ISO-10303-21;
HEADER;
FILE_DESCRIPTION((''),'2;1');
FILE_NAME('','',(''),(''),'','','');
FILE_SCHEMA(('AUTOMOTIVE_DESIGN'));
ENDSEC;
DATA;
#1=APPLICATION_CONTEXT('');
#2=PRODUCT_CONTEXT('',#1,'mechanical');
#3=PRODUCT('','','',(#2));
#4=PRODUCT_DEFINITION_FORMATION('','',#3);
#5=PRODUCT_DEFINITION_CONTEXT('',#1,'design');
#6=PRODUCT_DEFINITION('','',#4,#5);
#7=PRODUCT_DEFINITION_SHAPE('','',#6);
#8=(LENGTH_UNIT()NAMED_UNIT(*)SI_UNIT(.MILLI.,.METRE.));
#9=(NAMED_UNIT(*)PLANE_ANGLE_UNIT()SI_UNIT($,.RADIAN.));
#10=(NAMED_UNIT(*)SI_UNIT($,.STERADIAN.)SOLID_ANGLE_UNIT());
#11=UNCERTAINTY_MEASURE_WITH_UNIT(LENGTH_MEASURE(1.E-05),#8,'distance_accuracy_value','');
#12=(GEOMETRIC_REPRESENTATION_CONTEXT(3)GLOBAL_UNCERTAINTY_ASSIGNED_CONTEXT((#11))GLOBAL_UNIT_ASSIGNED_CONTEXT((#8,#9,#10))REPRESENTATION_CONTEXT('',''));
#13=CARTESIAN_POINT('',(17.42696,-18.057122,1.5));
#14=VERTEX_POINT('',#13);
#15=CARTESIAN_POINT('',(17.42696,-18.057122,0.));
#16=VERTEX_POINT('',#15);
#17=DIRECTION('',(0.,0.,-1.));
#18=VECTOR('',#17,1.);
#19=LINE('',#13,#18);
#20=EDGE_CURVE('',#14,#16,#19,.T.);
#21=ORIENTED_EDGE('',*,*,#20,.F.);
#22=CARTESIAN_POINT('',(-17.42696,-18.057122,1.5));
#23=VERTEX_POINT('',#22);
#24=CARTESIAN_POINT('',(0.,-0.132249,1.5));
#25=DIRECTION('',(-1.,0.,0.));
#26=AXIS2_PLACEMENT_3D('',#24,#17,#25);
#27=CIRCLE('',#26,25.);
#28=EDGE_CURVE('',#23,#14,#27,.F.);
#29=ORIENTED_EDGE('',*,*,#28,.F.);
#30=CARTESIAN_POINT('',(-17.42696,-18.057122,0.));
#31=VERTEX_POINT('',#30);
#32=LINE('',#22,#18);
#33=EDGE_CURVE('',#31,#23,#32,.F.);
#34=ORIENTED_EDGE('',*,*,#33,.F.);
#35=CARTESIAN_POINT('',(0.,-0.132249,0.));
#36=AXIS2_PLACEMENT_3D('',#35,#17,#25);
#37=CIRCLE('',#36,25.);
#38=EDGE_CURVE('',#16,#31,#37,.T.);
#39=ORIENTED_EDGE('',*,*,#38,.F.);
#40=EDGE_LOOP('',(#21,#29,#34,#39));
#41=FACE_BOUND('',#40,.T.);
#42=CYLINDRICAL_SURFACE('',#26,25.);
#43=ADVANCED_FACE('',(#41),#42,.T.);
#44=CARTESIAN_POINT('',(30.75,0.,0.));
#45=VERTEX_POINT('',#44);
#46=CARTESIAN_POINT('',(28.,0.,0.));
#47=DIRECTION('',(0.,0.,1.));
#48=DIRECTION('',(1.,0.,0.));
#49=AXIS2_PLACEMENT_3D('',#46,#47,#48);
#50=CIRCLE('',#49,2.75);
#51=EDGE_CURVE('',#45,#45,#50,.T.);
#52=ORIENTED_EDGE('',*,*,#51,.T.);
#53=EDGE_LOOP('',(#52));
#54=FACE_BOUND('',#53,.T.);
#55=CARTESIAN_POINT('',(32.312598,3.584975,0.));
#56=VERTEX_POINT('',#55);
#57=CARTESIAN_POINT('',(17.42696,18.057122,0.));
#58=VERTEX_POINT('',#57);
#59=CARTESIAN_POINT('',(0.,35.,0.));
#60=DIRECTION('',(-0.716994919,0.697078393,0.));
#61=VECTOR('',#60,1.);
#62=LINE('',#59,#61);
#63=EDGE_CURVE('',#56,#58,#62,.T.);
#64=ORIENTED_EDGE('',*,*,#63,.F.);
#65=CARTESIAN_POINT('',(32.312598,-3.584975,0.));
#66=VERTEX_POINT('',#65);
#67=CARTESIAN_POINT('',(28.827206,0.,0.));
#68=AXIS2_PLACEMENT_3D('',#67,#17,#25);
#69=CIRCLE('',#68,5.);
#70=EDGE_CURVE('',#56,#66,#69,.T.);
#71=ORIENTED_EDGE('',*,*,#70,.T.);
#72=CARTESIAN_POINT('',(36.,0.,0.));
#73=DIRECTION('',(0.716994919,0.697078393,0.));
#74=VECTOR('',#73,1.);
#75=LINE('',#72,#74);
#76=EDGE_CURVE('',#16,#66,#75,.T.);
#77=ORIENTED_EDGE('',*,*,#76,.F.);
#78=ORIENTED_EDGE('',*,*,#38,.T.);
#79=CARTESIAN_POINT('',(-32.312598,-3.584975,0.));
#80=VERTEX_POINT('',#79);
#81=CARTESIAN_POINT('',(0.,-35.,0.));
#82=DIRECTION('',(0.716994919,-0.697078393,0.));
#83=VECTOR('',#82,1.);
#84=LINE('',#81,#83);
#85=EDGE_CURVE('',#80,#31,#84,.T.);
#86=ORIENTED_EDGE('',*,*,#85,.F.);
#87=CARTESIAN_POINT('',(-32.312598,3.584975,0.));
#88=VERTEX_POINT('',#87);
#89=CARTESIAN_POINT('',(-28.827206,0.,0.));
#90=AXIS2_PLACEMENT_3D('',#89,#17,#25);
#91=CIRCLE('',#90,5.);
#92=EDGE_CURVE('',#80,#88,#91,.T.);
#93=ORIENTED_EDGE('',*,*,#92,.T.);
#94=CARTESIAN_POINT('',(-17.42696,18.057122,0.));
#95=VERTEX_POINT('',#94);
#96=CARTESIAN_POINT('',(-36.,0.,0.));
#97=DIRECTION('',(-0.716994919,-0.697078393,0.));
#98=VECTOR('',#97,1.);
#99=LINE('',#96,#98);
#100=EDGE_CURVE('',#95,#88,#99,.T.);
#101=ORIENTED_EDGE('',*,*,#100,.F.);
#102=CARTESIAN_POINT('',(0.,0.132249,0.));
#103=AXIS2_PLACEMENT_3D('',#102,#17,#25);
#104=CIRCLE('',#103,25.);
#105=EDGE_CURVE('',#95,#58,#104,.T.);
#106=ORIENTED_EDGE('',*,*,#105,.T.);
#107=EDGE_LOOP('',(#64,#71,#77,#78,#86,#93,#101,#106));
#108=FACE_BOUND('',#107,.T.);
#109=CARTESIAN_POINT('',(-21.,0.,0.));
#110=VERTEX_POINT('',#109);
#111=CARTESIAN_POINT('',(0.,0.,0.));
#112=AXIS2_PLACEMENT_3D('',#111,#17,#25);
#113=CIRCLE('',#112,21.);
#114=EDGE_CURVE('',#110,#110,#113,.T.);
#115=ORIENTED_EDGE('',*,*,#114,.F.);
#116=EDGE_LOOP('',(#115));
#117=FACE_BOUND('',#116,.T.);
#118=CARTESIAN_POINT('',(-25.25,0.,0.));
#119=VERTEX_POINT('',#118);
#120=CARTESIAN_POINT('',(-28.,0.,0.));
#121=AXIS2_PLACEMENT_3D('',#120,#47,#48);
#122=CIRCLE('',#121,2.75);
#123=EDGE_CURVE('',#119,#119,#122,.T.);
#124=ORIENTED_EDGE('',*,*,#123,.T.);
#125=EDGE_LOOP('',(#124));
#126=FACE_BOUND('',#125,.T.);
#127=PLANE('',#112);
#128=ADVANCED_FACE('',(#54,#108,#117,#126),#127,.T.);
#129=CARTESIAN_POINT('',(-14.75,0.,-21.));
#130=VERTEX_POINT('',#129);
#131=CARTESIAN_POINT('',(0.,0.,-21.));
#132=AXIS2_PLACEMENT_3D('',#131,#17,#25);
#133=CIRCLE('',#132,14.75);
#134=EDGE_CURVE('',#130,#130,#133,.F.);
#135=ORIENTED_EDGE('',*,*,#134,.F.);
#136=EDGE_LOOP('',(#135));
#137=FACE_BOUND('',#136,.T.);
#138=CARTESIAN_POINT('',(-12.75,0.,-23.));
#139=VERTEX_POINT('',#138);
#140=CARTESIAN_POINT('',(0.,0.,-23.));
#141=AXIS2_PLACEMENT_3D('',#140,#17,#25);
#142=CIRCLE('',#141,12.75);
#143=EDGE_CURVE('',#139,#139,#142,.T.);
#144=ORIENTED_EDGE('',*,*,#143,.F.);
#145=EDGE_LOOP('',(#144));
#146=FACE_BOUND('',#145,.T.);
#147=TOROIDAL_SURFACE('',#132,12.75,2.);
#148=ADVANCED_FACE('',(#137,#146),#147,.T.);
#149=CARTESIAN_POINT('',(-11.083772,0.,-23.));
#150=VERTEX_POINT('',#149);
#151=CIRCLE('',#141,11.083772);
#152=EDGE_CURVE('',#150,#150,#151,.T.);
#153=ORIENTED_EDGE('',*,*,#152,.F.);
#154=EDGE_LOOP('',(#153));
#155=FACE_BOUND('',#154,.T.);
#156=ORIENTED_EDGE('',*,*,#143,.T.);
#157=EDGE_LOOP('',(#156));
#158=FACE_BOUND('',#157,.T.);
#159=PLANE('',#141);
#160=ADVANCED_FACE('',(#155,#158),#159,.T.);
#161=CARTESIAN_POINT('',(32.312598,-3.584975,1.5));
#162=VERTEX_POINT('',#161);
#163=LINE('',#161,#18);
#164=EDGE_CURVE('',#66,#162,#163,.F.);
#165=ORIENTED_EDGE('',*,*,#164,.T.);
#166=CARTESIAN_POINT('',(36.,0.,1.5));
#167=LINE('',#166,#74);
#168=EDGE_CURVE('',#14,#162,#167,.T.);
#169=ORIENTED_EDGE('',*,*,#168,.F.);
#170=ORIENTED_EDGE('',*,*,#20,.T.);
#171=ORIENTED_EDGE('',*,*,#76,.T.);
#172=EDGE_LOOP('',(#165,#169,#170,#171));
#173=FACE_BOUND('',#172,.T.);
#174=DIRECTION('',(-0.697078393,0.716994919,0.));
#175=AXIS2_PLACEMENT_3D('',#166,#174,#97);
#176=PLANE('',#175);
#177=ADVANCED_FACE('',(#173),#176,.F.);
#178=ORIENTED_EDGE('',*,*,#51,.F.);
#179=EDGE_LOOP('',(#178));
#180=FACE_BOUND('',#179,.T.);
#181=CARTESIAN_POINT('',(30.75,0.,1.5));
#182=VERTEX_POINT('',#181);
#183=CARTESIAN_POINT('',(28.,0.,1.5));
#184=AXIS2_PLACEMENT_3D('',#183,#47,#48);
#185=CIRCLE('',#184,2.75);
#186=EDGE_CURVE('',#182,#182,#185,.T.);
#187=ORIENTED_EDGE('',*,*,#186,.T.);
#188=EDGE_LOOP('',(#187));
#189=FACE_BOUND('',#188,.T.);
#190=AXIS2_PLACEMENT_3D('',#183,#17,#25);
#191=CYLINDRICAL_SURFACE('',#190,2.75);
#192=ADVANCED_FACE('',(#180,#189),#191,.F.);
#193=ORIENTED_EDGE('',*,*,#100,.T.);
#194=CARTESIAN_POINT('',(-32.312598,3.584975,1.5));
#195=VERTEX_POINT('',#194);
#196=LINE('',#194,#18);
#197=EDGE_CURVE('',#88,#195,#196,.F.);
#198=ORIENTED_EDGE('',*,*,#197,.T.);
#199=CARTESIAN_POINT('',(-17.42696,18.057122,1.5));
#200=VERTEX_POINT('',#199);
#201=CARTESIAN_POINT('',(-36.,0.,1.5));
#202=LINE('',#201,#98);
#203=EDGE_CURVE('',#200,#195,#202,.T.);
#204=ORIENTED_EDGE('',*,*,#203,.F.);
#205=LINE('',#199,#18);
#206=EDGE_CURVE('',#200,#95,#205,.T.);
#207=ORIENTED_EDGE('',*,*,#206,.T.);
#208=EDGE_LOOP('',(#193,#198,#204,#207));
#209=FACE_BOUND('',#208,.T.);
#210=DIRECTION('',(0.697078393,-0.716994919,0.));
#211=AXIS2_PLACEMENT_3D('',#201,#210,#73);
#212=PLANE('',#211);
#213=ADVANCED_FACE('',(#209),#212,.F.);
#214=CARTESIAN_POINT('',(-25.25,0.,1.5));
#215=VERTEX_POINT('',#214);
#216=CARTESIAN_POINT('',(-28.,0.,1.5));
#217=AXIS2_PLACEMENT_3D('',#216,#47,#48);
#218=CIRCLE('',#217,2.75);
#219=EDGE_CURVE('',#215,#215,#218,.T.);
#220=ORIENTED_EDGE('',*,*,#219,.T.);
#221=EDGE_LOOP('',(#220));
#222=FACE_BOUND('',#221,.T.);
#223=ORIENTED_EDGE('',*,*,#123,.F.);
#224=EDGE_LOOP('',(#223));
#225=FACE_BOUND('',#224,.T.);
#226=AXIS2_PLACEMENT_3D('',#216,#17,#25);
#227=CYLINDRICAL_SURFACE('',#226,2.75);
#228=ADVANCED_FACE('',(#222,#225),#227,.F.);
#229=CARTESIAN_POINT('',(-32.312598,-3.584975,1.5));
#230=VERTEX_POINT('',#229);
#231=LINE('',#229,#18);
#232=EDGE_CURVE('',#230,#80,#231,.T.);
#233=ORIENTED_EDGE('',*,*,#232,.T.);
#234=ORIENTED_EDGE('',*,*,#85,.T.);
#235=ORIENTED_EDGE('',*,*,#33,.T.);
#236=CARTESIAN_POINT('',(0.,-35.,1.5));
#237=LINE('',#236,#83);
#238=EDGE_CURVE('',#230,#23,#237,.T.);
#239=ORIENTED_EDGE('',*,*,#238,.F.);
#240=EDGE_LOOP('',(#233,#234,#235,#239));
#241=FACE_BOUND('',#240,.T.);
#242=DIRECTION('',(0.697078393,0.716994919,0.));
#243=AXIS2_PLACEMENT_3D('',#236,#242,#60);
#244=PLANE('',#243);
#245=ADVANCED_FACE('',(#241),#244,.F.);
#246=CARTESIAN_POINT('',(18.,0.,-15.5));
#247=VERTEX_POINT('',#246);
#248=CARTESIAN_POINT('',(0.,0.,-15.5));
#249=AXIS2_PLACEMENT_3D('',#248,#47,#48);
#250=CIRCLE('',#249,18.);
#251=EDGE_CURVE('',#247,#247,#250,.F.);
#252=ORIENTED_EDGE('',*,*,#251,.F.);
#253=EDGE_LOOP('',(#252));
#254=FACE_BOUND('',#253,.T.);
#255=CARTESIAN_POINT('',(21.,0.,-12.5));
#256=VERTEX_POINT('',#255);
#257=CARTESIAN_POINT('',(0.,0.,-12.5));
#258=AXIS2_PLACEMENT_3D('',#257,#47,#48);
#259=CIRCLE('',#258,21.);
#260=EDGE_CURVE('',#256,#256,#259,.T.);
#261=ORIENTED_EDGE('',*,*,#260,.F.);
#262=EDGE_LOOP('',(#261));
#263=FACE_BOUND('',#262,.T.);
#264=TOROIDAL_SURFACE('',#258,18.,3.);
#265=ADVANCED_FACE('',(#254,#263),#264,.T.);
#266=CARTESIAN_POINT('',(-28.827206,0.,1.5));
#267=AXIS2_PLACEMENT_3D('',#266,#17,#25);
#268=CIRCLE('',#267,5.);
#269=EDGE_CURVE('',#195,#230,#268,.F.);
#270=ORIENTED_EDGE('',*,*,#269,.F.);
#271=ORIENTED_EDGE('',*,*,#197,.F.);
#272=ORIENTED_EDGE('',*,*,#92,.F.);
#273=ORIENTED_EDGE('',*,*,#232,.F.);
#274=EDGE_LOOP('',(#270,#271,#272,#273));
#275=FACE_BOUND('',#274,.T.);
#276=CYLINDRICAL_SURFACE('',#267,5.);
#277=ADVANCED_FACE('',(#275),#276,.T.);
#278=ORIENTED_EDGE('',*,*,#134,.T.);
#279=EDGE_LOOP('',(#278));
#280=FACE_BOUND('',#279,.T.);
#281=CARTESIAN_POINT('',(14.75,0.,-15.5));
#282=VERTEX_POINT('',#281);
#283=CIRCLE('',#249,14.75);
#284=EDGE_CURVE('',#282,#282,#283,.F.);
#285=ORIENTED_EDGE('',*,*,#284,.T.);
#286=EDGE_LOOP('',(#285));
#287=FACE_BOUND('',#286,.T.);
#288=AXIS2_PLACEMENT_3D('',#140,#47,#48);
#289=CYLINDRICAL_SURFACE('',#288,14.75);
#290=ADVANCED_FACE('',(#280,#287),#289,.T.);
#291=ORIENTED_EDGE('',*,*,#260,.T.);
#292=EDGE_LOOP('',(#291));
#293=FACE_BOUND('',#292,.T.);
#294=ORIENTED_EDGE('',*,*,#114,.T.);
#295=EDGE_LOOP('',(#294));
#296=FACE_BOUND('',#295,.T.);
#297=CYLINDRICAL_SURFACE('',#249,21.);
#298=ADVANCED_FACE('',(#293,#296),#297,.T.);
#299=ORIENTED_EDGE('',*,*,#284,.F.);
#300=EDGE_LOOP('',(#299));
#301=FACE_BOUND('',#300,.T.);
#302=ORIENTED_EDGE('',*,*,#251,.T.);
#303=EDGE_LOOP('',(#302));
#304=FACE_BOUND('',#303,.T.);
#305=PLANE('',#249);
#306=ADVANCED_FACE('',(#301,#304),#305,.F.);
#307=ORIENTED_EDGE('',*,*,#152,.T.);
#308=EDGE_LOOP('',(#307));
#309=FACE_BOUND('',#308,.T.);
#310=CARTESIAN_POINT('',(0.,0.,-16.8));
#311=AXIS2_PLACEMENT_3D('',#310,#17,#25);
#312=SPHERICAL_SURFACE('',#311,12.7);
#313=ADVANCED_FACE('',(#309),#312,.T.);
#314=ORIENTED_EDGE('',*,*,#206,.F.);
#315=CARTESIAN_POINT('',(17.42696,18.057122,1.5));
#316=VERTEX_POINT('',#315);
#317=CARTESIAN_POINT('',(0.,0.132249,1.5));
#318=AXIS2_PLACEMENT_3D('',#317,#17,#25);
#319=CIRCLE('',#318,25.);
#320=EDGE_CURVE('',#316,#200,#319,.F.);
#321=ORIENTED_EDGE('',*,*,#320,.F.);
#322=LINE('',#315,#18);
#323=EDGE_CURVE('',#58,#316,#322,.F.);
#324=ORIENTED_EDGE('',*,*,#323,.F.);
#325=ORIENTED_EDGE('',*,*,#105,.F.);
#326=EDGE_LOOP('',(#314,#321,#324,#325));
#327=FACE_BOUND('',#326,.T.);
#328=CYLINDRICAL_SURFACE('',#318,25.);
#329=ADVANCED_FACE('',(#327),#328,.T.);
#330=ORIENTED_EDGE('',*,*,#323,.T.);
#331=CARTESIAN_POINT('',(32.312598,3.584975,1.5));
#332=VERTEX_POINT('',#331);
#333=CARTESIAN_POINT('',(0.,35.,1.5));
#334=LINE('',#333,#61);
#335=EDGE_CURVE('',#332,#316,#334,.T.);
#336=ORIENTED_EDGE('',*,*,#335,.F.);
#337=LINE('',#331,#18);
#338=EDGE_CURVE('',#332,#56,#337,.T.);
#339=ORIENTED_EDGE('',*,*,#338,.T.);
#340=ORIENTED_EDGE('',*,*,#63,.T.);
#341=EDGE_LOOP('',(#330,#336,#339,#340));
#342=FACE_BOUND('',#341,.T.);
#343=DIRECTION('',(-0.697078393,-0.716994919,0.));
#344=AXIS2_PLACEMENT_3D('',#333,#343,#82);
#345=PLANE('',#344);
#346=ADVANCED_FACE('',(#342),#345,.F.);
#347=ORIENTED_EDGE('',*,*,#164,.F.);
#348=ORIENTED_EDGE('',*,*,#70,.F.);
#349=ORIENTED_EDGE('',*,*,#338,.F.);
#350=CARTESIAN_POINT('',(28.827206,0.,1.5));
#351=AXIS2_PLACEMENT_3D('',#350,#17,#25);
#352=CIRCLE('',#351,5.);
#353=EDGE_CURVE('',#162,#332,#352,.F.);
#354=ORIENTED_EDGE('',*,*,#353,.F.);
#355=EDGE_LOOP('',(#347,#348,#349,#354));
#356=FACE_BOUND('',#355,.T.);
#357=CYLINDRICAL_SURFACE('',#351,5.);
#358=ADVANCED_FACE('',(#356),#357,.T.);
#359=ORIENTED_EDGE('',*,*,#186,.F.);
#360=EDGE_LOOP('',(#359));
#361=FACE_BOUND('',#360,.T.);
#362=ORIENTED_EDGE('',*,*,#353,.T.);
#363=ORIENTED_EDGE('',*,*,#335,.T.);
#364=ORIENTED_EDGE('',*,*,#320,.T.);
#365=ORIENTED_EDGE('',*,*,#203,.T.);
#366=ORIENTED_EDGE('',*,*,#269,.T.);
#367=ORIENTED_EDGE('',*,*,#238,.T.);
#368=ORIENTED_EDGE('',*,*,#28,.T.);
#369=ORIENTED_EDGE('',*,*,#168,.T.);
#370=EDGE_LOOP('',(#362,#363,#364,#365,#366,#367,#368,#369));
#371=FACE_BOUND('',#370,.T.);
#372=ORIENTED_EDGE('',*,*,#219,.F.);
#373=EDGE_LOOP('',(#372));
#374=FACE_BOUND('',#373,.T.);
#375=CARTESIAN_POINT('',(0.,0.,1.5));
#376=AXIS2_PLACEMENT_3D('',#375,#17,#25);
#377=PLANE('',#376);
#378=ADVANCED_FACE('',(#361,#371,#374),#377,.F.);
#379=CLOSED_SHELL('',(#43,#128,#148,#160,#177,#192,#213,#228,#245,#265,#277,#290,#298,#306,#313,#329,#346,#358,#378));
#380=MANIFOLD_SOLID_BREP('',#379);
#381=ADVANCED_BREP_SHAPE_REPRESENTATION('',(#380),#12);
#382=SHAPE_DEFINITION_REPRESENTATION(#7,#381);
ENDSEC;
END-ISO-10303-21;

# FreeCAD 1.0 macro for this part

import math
import FreeCAD as App
import Part
import Sketcher
from FreeCAD import Vector


def edges_at(feature, points):
    """Names of the edges that pass closest to the given points."""
    edges = feature.Shape.Edges
    near = lambda p: min(range(len(edges)), key=lambda i: edges[i].distToShape(Part.Vertex(*p))[0])
    return sorted({f"Edge{near(p) + 1}" for p in points})

doc = App.newDocument("Part")
body = doc.addObject("PartDesign::Body", "Body")

sketch1 = body.newObject("Sketcher::SketchObject", "Sketch")
sketch1.AttachmentSupport = (doc.getObject("XY_Plane"), [""])
sketch1.MapMode = "FlatFace"
sketch1.addGeometry([
    Part.LineSegment(Vector(-36, 0, 0), Vector(0, -35, 0)),
    Part.LineSegment(Vector(0, -35, 0), Vector(36, 0, 0)),
    Part.LineSegment(Vector(36, 0, 0), Vector(0, 35, 0)),
    Part.LineSegment(Vector(0, 35, 0), Vector(-36, 0, 0)),
    Part.Circle(Vector(28, 0, 0), Vector(0, 0, 1), 2.75),
    Part.Circle(Vector(-28, 0, 0), Vector(0, 0, 1), 2.75),
], False)
sketch1.addConstraint([
    Sketcher.Constraint("Coincident", 0, 2, 1, 1),
    Sketcher.Constraint("Coincident", 1, 2, 2, 1),
    Sketcher.Constraint("Coincident", 2, 2, 3, 1),
    Sketcher.Constraint("Coincident", 3, 2, 0, 1),
    Sketcher.Constraint("Equal", 4, 5),
    Sketcher.Constraint("Symmetric", 4, 3, 5, 3, -1, 1),
    Sketcher.Constraint("Symmetric", 0, 2, 2, 2, -1, 1),
    Sketcher.Constraint("Symmetric", 1, 2, 3, 2, -1, 1),
    Sketcher.Constraint("PointOnObject", 4, 3, -1),
    Sketcher.Constraint("PointOnObject", 0, 2, -2),
    Sketcher.Constraint("PointOnObject", 1, 2, -1),
    Sketcher.Constraint("Diameter", 4, 5.5),
    Sketcher.Constraint("DistanceX", -1, 1, 4, 3, 28.0),
    Sketcher.Constraint("DistanceY", 0, 2, -1, 1, 35.0),
    Sketcher.Constraint("DistanceX", -1, 1, 1, 2, 36.0),
])
pad1 = body.newObject("PartDesign::Pad", "Pad")
pad1.Profile = sketch1
pad1.Length = 1.5

sketch2 = body.newObject("Sketcher::SketchObject", "Sketch001")
sketch2.AttachmentSupport = (doc.getObject("XY_Plane"), [""])
sketch2.MapMode = "FlatFace"
sketch2.AttachmentOffset = App.Placement(Vector(0, 0, 1.5), App.Rotation())
sketch2.addGeometry(Part.Circle(Vector(0, 0, 0), Vector(0, 0, 1), 21), False)
sketch2.addConstraint([
    Sketcher.Constraint("Coincident", 0, 3, -1, 1),
    Sketcher.Constraint("Diameter", 0, 42.0),
])
pad2 = body.newObject("PartDesign::Pad", "Pad001")
pad2.Profile = sketch2
pad2.Length = 17
pad2.Reversed = True
doc.recompute()

fillet = body.newObject("PartDesign::Fillet", "Fillet")
fillet.Base = (pad2, edges_at(pad2, [(-21, 0, -15.5)]))
fillet.Radius = 3

sketch3 = body.newObject("Sketcher::SketchObject", "Sketch002")
sketch3.AttachmentSupport = (doc.getObject("XY_Plane"), [""])
sketch3.MapMode = "FlatFace"
sketch3.AttachmentOffset = App.Placement(Vector(0, 0, -16.8), App.Rotation())
sketch3.addGeometry([
    Part.LineSegment(Vector(0, -12.7, 0), Vector(0, 12.7, 0)),
    Part.ArcOfCircle(Part.Circle(Vector(0, 0, 0), Vector(0, 0, 1), 12.7), math.radians(-90), math.radians(90)),
], False)
sketch3.addConstraint([
    Sketcher.Constraint("Coincident", 0, 1, 1, 1),
    Sketcher.Constraint("Coincident", 1, 2, 0, 2),
    Sketcher.Constraint("Vertical", 0),
    Sketcher.Constraint("Coincident", 1, 3, -1, 1),
    Sketcher.Constraint("PointOnObject", 0, 1, -2),
    Sketcher.Constraint("Radius", 1, 12.7),
])
revolution = body.newObject("PartDesign::Revolution", "Revolution")
revolution.Profile = sketch3
revolution.ReferenceAxis = (sketch3, ["V_Axis"])
revolution.Angle = 360

sketch4 = body.newObject("Sketcher::SketchObject", "Sketch003")
sketch4.AttachmentSupport = (doc.getObject("XY_Plane"), [""])
sketch4.MapMode = "FlatFace"
sketch4.AttachmentOffset = App.Placement(Vector(0, 0, -15.5), App.Rotation())
sketch4.addGeometry(Part.Circle(Vector(0, 0, 0), Vector(0, 0, 1), 14.75), False)
sketch4.addConstraint([
    Sketcher.Constraint("Coincident", 0, 3, -1, 1),
    Sketcher.Constraint("Diameter", 0, 29.5),
])
pad3 = body.newObject("PartDesign::Pad", "Pad002")
pad3.Profile = sketch4
pad3.Length = 7.5
pad3.Reversed = True
doc.recompute()

fillet2 = body.newObject("PartDesign::Fillet", "Fillet001")
fillet2.Base = (pad3, edges_at(pad3, [(-14.75, 0, -23)]))
fillet2.Radius = 2
doc.recompute()

fillet3 = body.newObject("PartDesign::Fillet", "Fillet002")
fillet3.Base = (fillet2, edges_at(fillet2, [(0, 35, 0.75), (0, -35, 0.75)]))
fillet3.Radius = 25
doc.recompute()

fillet4 = body.newObject("PartDesign::Fillet", "Fillet003")
fillet4.Base = (fillet3, edges_at(fillet3, [(36, 0, 0.75), (-36, 0, 0.75)]))
fillet4.Radius = 5

doc.recompute()
